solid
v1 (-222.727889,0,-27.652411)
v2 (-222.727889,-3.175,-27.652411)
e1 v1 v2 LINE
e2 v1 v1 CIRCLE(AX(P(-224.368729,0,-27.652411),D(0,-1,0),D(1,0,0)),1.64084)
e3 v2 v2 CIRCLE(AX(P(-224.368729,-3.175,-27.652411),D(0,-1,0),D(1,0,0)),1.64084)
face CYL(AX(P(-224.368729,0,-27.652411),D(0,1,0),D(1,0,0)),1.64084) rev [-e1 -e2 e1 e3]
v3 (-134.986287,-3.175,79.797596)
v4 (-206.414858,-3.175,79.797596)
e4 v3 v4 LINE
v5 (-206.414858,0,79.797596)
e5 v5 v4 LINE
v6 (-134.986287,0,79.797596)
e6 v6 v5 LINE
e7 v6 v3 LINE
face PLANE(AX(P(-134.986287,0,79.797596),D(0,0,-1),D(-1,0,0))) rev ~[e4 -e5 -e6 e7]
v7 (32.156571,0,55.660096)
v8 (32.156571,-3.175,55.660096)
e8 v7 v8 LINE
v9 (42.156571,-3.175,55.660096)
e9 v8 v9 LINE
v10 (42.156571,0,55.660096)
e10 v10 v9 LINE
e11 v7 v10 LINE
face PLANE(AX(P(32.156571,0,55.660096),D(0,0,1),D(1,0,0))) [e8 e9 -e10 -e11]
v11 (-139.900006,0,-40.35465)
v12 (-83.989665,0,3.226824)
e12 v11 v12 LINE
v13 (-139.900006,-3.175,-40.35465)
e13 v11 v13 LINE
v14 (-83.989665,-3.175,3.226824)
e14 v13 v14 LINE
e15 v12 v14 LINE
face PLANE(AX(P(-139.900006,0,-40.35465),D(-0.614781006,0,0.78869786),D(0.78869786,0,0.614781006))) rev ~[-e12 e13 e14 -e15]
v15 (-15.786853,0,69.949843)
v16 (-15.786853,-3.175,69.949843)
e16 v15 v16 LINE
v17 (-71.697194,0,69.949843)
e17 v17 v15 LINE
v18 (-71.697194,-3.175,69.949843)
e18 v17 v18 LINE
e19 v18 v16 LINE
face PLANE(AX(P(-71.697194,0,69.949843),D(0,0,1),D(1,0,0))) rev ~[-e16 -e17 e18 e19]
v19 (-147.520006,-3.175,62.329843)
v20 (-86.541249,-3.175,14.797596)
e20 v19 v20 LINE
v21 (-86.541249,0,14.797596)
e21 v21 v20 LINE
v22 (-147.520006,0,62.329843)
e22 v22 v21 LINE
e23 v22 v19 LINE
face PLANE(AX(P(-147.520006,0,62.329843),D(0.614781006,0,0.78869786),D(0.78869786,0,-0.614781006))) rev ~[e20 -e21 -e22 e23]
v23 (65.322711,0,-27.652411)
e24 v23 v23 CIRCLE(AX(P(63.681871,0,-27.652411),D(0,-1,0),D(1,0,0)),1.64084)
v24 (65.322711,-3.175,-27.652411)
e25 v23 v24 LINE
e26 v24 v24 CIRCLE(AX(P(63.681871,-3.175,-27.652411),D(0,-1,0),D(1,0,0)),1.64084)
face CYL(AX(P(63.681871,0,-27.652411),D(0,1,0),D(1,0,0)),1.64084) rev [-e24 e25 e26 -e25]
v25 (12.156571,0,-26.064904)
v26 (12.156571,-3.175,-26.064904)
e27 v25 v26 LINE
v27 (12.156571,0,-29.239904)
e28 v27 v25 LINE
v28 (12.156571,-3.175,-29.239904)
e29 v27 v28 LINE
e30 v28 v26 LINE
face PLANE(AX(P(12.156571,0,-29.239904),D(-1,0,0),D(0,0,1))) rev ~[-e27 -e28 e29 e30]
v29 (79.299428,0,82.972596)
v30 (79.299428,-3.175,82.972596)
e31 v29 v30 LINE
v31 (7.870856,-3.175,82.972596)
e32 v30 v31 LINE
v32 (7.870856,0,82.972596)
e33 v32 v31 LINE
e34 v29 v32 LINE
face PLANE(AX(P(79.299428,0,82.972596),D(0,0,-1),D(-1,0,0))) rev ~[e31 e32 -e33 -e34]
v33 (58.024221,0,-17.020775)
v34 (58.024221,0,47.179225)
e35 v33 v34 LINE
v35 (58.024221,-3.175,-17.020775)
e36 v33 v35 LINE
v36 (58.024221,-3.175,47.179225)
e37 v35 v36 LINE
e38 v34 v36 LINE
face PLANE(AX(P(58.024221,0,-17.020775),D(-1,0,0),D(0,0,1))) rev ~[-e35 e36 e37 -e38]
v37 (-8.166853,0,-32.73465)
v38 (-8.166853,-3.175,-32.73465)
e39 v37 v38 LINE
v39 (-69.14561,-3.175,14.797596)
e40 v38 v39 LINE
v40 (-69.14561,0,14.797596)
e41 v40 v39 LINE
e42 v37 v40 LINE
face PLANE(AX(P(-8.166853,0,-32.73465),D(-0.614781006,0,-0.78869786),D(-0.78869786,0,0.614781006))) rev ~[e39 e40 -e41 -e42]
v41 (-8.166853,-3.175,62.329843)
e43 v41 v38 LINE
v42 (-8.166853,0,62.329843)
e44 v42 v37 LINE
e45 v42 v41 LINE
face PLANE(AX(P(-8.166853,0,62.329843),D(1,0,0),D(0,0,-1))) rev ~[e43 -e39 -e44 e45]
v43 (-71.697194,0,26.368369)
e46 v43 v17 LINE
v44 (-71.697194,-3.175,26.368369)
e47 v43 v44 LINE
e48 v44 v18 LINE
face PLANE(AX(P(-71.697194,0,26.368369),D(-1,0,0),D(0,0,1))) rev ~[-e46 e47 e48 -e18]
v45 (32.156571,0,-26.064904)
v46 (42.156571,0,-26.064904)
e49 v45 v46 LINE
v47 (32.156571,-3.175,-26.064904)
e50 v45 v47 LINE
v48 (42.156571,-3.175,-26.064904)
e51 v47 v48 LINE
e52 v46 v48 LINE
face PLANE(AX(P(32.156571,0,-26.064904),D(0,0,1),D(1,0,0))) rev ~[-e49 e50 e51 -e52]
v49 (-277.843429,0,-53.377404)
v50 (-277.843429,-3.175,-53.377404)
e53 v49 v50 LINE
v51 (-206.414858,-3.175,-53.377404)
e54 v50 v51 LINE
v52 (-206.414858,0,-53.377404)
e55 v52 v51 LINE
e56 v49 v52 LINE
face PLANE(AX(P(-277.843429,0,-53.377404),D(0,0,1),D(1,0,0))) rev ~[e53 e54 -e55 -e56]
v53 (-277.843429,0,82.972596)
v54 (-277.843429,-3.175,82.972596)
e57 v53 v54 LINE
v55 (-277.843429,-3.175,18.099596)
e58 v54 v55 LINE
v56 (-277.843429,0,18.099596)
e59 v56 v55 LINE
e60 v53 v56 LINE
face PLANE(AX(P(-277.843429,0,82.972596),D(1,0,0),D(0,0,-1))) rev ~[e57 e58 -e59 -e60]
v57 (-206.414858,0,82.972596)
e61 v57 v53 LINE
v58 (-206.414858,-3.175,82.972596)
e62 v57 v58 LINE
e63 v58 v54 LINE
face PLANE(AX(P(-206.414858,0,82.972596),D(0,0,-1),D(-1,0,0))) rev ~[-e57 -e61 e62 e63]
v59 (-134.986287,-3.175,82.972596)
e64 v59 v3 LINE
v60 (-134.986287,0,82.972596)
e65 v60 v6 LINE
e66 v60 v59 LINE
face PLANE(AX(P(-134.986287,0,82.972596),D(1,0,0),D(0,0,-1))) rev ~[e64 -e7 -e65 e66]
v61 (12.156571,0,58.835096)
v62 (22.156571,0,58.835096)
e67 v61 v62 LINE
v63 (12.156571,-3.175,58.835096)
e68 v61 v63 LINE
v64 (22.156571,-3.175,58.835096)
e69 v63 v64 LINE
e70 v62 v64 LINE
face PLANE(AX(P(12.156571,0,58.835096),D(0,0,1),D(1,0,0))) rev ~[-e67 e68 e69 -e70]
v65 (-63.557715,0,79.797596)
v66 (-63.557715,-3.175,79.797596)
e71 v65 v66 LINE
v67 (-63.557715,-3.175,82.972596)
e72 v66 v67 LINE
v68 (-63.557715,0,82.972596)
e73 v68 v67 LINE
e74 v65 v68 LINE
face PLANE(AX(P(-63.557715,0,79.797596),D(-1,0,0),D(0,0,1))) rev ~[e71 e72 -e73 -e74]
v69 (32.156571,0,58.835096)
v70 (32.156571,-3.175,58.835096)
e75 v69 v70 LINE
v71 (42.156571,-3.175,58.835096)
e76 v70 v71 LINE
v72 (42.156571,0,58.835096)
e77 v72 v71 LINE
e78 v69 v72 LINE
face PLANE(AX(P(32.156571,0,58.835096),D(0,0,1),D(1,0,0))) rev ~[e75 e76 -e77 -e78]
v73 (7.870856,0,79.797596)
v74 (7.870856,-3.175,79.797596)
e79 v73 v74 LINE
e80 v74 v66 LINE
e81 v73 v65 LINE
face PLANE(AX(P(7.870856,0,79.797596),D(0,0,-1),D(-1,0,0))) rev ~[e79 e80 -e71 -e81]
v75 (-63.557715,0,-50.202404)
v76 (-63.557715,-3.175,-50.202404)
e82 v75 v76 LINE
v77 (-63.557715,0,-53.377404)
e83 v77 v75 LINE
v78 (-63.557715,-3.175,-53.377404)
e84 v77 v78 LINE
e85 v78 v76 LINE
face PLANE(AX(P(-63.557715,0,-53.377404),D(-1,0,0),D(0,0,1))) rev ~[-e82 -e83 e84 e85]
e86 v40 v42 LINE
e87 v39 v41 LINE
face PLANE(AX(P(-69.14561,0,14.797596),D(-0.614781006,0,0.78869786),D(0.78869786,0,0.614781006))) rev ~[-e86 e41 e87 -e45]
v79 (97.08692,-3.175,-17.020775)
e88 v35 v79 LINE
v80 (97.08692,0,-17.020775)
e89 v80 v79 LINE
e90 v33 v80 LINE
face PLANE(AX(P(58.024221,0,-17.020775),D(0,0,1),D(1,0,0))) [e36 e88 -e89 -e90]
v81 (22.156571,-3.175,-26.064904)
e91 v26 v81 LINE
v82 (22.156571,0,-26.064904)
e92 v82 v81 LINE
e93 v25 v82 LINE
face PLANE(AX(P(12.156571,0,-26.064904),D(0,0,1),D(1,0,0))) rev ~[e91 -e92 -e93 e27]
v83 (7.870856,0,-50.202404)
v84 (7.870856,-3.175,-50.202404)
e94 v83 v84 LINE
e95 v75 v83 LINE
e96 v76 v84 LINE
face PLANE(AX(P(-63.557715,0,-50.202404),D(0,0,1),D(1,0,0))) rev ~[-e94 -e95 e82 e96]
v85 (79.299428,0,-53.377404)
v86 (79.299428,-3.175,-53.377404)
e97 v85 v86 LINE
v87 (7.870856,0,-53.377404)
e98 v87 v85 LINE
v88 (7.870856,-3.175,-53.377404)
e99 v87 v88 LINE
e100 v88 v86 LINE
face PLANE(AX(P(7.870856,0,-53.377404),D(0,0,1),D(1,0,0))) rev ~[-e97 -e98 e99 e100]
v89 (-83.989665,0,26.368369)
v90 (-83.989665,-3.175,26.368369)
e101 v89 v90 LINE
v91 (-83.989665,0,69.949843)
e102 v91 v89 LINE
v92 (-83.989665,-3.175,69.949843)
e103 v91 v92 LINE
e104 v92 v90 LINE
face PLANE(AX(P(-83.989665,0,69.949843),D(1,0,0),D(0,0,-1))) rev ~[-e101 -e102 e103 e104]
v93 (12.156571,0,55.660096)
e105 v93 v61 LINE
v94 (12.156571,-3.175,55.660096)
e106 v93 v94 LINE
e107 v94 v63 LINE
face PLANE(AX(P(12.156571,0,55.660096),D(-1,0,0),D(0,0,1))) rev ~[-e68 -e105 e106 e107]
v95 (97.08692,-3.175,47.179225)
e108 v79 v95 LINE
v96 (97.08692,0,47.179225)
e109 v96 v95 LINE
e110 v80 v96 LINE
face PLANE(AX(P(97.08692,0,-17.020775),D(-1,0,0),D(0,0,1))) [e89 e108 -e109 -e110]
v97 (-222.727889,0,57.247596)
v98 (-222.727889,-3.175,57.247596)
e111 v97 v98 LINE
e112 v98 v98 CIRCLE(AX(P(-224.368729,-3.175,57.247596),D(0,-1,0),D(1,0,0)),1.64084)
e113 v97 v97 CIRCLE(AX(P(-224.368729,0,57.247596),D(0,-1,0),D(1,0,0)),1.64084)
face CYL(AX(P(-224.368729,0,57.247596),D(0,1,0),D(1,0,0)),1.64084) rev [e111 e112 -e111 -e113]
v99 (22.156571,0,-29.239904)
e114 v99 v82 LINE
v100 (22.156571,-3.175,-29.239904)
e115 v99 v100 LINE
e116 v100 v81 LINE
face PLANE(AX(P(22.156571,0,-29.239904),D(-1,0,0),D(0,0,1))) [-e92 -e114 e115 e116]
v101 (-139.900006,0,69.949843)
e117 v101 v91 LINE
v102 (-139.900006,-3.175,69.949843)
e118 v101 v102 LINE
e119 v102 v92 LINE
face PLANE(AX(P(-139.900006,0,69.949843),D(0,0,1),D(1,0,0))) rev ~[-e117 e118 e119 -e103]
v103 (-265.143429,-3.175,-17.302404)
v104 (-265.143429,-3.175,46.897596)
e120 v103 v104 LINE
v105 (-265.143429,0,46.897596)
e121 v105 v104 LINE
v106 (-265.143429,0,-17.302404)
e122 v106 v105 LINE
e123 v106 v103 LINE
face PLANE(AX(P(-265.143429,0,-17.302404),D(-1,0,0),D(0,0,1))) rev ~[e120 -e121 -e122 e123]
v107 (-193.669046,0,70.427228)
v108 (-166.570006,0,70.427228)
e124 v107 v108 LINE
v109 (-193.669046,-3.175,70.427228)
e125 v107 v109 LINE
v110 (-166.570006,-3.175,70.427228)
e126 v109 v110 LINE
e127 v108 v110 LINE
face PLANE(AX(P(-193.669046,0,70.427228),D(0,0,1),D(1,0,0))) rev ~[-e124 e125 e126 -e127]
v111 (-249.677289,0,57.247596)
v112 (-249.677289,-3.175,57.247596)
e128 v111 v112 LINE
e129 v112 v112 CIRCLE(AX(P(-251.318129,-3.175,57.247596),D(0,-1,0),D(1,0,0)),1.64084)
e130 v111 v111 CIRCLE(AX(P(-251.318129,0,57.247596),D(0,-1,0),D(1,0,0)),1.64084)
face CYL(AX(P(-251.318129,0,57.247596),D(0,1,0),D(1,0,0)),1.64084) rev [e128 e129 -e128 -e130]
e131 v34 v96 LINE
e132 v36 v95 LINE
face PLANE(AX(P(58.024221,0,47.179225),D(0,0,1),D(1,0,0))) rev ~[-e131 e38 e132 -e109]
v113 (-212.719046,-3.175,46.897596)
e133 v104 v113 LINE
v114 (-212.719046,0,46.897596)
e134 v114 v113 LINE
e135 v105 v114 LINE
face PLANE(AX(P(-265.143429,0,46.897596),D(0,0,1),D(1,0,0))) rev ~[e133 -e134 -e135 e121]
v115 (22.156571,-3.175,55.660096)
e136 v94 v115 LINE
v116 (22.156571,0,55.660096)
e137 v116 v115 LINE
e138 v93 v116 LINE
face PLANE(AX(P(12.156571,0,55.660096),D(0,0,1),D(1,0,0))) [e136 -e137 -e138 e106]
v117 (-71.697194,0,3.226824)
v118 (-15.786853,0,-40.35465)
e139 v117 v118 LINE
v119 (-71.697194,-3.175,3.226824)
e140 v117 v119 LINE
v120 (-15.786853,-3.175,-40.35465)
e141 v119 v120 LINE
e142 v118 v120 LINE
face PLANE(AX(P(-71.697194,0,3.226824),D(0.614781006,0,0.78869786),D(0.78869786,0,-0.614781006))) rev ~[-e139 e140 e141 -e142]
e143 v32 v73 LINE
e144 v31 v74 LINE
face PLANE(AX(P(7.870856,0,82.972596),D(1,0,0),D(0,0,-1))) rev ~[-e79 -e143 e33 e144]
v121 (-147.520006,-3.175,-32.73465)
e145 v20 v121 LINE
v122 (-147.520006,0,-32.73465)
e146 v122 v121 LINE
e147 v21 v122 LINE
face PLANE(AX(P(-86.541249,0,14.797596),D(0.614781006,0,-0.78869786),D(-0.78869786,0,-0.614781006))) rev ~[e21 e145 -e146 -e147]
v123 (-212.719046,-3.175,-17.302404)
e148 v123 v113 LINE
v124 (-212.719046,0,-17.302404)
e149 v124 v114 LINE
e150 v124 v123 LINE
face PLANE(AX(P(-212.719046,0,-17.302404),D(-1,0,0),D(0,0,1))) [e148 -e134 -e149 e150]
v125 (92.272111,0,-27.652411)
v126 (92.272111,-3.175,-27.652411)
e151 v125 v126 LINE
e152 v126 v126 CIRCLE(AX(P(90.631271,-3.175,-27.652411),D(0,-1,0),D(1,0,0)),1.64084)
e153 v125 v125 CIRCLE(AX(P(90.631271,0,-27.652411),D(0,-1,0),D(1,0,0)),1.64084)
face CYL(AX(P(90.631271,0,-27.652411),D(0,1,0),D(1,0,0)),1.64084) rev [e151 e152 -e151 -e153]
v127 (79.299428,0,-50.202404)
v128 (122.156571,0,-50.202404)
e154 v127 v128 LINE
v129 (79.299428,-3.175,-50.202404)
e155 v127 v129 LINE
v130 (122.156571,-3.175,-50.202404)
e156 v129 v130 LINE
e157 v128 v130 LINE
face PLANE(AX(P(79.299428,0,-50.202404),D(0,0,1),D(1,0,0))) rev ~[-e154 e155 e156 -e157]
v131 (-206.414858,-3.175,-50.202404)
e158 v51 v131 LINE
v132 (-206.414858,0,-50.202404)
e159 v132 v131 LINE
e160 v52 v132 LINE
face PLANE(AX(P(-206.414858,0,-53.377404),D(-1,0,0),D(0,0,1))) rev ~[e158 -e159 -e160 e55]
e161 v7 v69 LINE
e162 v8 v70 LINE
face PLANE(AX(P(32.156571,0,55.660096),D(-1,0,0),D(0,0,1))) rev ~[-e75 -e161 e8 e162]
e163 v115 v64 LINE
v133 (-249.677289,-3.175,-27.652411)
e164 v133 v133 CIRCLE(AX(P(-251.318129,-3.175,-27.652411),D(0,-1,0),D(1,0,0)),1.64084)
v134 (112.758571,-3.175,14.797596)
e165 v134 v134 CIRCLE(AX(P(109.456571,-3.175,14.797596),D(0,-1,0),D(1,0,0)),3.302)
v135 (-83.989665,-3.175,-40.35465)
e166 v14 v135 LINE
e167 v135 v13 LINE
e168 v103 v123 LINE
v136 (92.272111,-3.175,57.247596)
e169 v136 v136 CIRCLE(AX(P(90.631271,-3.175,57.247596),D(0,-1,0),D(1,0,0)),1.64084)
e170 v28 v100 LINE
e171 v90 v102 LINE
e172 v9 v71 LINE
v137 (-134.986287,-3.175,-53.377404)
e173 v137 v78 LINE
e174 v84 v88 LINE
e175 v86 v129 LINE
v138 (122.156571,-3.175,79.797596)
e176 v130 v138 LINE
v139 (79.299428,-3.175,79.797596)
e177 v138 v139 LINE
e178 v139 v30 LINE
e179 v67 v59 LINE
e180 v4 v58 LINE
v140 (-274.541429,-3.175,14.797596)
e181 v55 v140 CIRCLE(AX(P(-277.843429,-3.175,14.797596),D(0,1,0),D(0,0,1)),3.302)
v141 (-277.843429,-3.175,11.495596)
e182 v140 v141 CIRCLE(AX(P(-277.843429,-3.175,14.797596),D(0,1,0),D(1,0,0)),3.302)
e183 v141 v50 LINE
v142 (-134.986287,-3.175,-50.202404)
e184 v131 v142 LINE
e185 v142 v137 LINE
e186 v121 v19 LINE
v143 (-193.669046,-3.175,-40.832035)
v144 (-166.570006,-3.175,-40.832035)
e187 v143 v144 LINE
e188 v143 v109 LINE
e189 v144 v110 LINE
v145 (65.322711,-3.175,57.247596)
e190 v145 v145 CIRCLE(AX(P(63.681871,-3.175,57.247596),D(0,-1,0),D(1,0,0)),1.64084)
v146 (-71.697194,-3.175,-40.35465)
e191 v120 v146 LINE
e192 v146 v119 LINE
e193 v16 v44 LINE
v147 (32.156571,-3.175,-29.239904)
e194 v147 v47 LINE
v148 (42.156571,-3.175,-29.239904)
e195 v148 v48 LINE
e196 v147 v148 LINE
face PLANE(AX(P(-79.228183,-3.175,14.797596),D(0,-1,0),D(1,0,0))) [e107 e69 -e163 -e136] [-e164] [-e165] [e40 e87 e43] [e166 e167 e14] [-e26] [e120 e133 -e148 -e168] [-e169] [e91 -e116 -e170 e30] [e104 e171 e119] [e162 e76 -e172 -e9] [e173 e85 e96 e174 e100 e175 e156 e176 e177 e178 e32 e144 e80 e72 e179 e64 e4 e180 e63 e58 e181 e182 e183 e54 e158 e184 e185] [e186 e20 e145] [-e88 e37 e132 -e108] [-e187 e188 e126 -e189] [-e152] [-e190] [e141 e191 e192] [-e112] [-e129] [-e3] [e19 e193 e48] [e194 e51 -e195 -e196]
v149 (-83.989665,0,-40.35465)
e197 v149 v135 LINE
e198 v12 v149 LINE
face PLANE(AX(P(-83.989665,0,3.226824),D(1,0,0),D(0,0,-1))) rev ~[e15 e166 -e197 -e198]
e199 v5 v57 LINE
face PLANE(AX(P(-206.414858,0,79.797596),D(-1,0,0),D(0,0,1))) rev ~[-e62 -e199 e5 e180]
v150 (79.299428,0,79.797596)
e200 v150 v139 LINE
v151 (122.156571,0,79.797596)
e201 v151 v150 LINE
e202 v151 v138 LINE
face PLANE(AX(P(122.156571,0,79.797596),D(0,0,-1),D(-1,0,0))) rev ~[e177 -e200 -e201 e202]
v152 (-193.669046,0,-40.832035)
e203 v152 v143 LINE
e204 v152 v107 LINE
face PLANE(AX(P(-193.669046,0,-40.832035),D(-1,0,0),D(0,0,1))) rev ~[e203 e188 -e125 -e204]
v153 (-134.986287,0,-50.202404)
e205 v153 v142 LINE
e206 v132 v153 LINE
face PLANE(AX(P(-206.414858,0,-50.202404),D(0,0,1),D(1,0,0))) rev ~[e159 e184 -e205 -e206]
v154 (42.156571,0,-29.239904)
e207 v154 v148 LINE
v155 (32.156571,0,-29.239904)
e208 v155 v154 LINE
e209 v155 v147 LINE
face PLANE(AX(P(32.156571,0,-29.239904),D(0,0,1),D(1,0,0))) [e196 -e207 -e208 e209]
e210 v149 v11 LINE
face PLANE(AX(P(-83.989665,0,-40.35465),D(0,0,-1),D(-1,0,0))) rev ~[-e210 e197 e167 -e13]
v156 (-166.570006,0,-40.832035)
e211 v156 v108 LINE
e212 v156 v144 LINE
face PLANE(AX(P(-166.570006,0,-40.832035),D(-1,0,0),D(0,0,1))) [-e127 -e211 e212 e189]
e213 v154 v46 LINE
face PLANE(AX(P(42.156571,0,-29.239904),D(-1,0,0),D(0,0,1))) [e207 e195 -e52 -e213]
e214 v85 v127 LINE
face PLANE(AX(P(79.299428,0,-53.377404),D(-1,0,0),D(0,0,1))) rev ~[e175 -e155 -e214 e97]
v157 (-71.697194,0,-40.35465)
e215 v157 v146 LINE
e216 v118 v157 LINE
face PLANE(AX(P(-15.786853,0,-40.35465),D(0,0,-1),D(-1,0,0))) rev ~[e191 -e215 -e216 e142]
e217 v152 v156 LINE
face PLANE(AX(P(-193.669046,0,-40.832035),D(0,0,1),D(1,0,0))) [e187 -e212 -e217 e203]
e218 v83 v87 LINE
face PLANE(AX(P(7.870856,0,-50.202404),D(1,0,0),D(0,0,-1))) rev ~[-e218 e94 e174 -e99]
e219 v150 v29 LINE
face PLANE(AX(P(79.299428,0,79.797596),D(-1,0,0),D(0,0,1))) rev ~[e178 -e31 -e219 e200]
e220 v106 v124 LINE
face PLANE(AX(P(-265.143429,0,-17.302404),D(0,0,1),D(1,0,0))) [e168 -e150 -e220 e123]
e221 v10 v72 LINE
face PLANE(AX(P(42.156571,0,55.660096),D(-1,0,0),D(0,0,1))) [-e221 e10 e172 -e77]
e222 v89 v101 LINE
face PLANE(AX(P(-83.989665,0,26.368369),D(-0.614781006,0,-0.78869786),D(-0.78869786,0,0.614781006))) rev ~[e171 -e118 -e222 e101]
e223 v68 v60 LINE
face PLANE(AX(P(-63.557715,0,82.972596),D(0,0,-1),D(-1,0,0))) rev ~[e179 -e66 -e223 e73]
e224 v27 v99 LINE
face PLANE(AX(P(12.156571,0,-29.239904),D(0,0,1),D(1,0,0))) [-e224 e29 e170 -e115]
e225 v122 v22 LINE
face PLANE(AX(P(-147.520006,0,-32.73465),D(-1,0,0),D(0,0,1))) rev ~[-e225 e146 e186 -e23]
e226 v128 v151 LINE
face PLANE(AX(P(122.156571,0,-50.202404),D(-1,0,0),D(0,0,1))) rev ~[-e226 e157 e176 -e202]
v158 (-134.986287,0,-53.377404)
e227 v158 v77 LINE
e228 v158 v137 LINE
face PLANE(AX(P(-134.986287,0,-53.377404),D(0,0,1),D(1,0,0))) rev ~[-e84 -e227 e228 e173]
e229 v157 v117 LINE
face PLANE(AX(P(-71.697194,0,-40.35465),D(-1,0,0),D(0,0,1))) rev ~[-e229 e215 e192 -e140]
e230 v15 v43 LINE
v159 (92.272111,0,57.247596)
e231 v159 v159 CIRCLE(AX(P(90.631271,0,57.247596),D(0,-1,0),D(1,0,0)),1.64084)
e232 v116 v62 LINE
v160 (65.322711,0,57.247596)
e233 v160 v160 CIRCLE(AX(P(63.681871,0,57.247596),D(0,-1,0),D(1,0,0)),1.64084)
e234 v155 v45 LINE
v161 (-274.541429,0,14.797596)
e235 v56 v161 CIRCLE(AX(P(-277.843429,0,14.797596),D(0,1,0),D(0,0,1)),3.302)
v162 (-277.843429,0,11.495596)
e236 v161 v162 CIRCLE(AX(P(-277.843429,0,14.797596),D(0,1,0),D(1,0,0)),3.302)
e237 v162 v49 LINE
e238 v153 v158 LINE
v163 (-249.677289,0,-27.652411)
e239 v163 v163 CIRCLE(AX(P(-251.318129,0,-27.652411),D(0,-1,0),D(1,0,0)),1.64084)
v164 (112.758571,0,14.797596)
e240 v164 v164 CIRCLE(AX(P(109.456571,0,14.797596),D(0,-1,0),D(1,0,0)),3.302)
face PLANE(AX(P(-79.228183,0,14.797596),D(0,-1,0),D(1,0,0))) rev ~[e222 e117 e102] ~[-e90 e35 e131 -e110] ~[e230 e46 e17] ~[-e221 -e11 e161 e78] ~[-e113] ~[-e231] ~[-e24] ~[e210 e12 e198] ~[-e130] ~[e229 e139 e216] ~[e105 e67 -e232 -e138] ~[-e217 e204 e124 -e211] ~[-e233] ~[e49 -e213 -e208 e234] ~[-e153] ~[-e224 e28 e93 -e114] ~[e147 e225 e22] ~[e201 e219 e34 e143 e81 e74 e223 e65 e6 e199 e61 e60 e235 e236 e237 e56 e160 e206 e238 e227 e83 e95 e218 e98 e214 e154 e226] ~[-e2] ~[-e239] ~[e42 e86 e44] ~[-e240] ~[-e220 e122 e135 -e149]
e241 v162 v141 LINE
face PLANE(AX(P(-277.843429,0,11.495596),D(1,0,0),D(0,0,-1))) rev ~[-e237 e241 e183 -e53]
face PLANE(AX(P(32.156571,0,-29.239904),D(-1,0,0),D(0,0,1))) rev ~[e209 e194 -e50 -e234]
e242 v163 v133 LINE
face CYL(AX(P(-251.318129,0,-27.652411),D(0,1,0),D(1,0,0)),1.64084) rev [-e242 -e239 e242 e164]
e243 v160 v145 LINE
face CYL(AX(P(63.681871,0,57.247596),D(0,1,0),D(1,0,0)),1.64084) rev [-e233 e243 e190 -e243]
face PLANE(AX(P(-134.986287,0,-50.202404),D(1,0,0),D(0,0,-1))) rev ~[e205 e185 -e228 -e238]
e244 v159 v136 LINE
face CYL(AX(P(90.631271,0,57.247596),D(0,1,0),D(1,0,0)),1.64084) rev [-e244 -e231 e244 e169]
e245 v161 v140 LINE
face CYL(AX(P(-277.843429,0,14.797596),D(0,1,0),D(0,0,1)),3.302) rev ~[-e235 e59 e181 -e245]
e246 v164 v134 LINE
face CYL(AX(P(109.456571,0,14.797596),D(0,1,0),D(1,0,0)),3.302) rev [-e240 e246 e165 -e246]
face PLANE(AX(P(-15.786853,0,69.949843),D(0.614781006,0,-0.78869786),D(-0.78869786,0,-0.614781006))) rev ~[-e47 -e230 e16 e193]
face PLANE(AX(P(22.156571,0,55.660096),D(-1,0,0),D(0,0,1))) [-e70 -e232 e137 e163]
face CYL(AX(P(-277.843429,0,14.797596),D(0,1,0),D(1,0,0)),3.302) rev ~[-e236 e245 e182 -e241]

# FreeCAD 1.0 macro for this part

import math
import FreeCAD as App
import Part
import Sketcher
from FreeCAD import Vector

doc = App.newDocument("Part")
body = doc.addObject("PartDesign::Body", "Body")

# Sketch on XZ plane
sketch1 = body.newObject("Sketcher::SketchObject", "Sketch")
sketch1.AttachmentSupport = (doc.getObject("XZ_Plane"), [""])
sketch1.MapMode = "FlatFace"
sketch1.addGeometry(Part.LineSegment(Vector(79.299428, -50.202404, 0), Vector(122.156571, -50.202404, 0)), False)
sketch1.addGeometry(Part.LineSegment(Vector(122.156571, -50.202404, 0), Vector(122.156571, 79.797596, 0)), False)
sketch1.addGeometry(Part.LineSegment(Vector(122.156571, 79.797596, 0), Vector(79.299428, 79.797596, 0)), False)
sketch1.addGeometry(Part.LineSegment(Vector(79.299428, 79.797596, 0), Vector(79.299428, 82.972596, 0)), False)
sketch1.addGeometry(Part.LineSegment(Vector(79.299428, 82.972596, 0), Vector(7.870856, 82.972596, 0)), False)
sketch1.addGeometry(Part.LineSegment(Vector(7.870856, 82.972596, 0), Vector(7.870856, 79.797596, 0)), False)
sketch1.addGeometry(Part.LineSegment(Vector(7.870856, 79.797596, 0), Vector(-63.557715, 79.797596, 0)), False)
sketch1.addGeometry(Part.LineSegment(Vector(-63.557715, 79.797596, 0), Vector(-63.557715, 82.972596, 0)), False)
sketch1.addGeometry(Part.LineSegment(Vector(-63.557715, 82.972596, 0), Vector(-134.986287, 82.972596, 0)), False)
sketch1.addGeometry(Part.LineSegment(Vector(-134.986287, 82.972596, 0), Vector(-134.986287, 79.797596, 0)), False)
sketch1.addGeometry(Part.LineSegment(Vector(-134.986287, 79.797596, 0), Vector(-206.414858, 79.797596, 0)), False)
sketch1.addGeometry(Part.LineSegment(Vector(-206.414858, 79.797596, 0), Vector(-206.414858, 82.972596, 0)), False)
sketch1.addGeometry(Part.LineSegment(Vector(-206.414858, 82.972596, 0), Vector(-277.843429, 82.972596, 0)), False)
sketch1.addGeometry(Part.LineSegment(Vector(-277.843429, 82.972596, 0), Vector(-277.843429, 18.099596, 0)), False)
sketch1.addGeometry(Part.ArcOfCircle(Part.Circle(Vector(-277.843429, 14.797596, 0), Vector(0, 0, 1), 3.302), math.radians(0), math.radians(90)), False)
sketch1.addGeometry(Part.ArcOfCircle(Part.Circle(Vector(-277.843429, 14.797596, 0), Vector(0, 0, 1), 3.302), math.radians(-90), math.radians(0)), False)
sketch1.addGeometry(Part.LineSegment(Vector(-277.843429, 11.495596, 0), Vector(-277.843429, -53.377404, 0)), False)
sketch1.addGeometry(Part.LineSegment(Vector(-277.843429, -53.377404, 0), Vector(-206.414858, -53.377404, 0)), False)
sketch1.addGeometry(Part.LineSegment(Vector(-206.414858, -53.377404, 0), Vector(-206.414858, -50.202404, 0)), False)
sketch1.addGeometry(Part.LineSegment(Vector(-206.414858, -50.202404, 0), Vector(-134.986287, -50.202404, 0)), False)
sketch1.addGeometry(Part.LineSegment(Vector(-134.986287, -50.202404, 0), Vector(-134.986287, -53.377404, 0)), False)
sketch1.addGeometry(Part.LineSegment(Vector(-134.986287, -53.377404, 0), Vector(-63.557715, -53.377404, 0)), False)
sketch1.addGeometry(Part.LineSegment(Vector(-63.557715, -53.377404, 0), Vector(-63.557715, -50.202404, 0)), False)
sketch1.addGeometry(Part.LineSegment(Vector(-63.557715, -50.202404, 0), Vector(7.870856, -50.202404, 0)), False)
sketch1.addGeometry(Part.LineSegment(Vector(7.870856, -50.202404, 0), Vector(7.870856, -53.377404, 0)), False)
sketch1.addGeometry(Part.LineSegment(Vector(7.870856, -53.377404, 0), Vector(79.299428, -53.377404, 0)), False)
sketch1.addGeometry(Part.LineSegment(Vector(79.299428, -53.377404, 0), Vector(79.299428, -50.202404, 0)), False)
sketch1.addGeometry(Part.Circle(Vector(-251.318129, -27.652411, 0), Vector(0, 0, 1), 1.64084), False)
sketch1.addGeometry(Part.Circle(Vector(-224.368729, -27.652411, 0), Vector(0, 0, 1), 1.64084), False)
sketch1.addGeometry(Part.LineSegment(Vector(-139.900006, -40.35465, 0), Vector(-83.989665, 3.226824, 0)), False)
sketch1.addGeometry(Part.LineSegment(Vector(-83.989665, 3.226824, 0), Vector(-83.989665, -40.35465, 0)), False)
sketch1.addGeometry(Part.LineSegment(Vector(-83.989665, -40.35465, 0), Vector(-139.900006, -40.35465, 0)), False)
sketch1.addGeometry(Part.LineSegment(Vector(22.156571, -29.239904, 0), Vector(12.156571, -29.239904, 0)), False)
sketch1.addGeometry(Part.LineSegment(Vector(12.156571, -29.239904, 0), Vector(12.156571, -26.064904, 0)), False)
sketch1.addGeometry(Part.LineSegment(Vector(12.156571, -26.064904, 0), Vector(22.156571, -26.064904, 0)), False)
sketch1.addGeometry(Part.LineSegment(Vector(22.156571, -26.064904, 0), Vector(22.156571, -29.239904, 0)), False)
sketch1.addGeometry(Part.LineSegment(Vector(-71.697194, -40.35465, 0), Vector(-71.697194, 3.226824, 0)), False)
sketch1.addGeometry(Part.LineSegment(Vector(-71.697194, 3.226824, 0), Vector(-15.786853, -40.35465, 0)), False)
sketch1.addGeometry(Part.LineSegment(Vector(-15.786853, -40.35465, 0), Vector(-71.697194, -40.35465, 0)), False)
sketch1.addGeometry(Part.LineSegment(Vector(42.156571, -29.239904, 0), Vector(32.156571, -29.239904, 0)), False)
sketch1.addGeometry(Part.LineSegment(Vector(32.156571, -29.239904, 0), Vector(32.156571, -26.064904, 0)), False)
sketch1.addGeometry(Part.LineSegment(Vector(32.156571, -26.064904, 0), Vector(42.156571, -26.064904, 0)), False)
sketch1.addGeometry(Part.LineSegment(Vector(42.156571, -26.064904, 0), Vector(42.156571, -29.239904, 0)), False)
sketch1.addGeometry(Part.Circle(Vector(63.681871, -27.652411, 0), Vector(0, 0, 1), 1.64084), False)
sketch1.addGeometry(Part.Circle(Vector(90.631271, -27.652411, 0), Vector(0, 0, 1), 1.64084), False)
sketch1.addGeometry(Part.LineSegment(Vector(-212.719046, -17.302404, 0), Vector(-265.143429, -17.302404, 0)), False)
sketch1.addGeometry(Part.LineSegment(Vector(-265.143429, -17.302404, 0), Vector(-265.143429, 46.897596, 0)), False)
sketch1.addGeometry(Part.LineSegment(Vector(-265.143429, 46.897596, 0), Vector(-212.719046, 46.897596, 0)), False)
sketch1.addGeometry(Part.LineSegment(Vector(-212.719046, 46.897596, 0), Vector(-212.719046, -17.302404, 0)), False)
sketch1.addGeometry(Part.LineSegment(Vector(-166.570006, -40.832035, 0), Vector(-193.669046, -40.832035, 0)), False)
sketch1.addGeometry(Part.LineSegment(Vector(-193.669046, -40.832035, 0), Vector(-193.669046, 70.427228, 0)), False)
sketch1.addGeometry(Part.LineSegment(Vector(-193.669046, 70.427228, 0), Vector(-166.570006, 70.427228, 0)), False)
sketch1.addGeometry(Part.LineSegment(Vector(-166.570006, 70.427228, 0), Vector(-166.570006, -40.832035, 0)), False)
sketch1.addGeometry(Part.LineSegment(Vector(-147.520006, 62.329843, 0), Vector(-86.541249, 14.797596, 0)), False)
sketch1.addGeometry(Part.LineSegment(Vector(-86.541249, 14.797596, 0), Vector(-147.520006, -32.73465, 0)), False)
sketch1.addGeometry(Part.LineSegment(Vector(-147.520006, -32.73465, 0), Vector(-147.520006, 62.329843, 0)), False)
sketch1.addGeometry(Part.Circle(Vector(-251.318129, 57.247596, 0), Vector(0, 0, 1), 1.64084), False)
sketch1.addGeometry(Part.Circle(Vector(-224.368729, 57.247596, 0), Vector(0, 0, 1), 1.64084), False)
sketch1.addGeometry(Part.LineSegment(Vector(-139.900006, 69.949843, 0), Vector(-83.989665, 69.949843, 0)), False)
sketch1.addGeometry(Part.LineSegment(Vector(-83.989665, 69.949843, 0), Vector(-83.989665, 26.368369, 0)), False)
sketch1.addGeometry(Part.LineSegment(Vector(-83.989665, 26.368369, 0), Vector(-139.900006, 69.949843, 0)), False)
sketch1.addGeometry(Part.LineSegment(Vector(-8.166853, -32.73465, 0), Vector(-69.14561, 14.797596, 0)), False)
sketch1.addGeometry(Part.LineSegment(Vector(-69.14561, 14.797596, 0), Vector(-8.166853, 62.329843, 0)), False)
sketch1.addGeometry(Part.LineSegment(Vector(-8.166853, 62.329843, 0), Vector(-8.166853, -32.73465, 0)), False)
sketch1.addGeometry(Part.LineSegment(Vector(97.08692, -17.020775, 0), Vector(58.024221, -17.020775, 0)), False)
sketch1.addGeometry(Part.LineSegment(Vector(58.024221, -17.020775, 0), Vector(58.024221, 47.179225, 0)), False)
sketch1.addGeometry(Part.LineSegment(Vector(58.024221, 47.179225, 0), Vector(97.08692, 47.179225, 0)), False)
sketch1.addGeometry(Part.LineSegment(Vector(97.08692, 47.179225, 0), Vector(97.08692, -17.020775, 0)), False)
sketch1.addGeometry(Part.Circle(Vector(109.456571, 14.797596, 0), Vector(0, 0, 1), 3.302), False)
sketch1.addGeometry(Part.LineSegment(Vector(-15.786853, 69.949843, 0), Vector(-71.697194, 26.368369, 0)), False)
sketch1.addGeometry(Part.LineSegment(Vector(-71.697194, 26.368369, 0), Vector(-71.697194, 69.949843, 0)), False)
sketch1.addGeometry(Part.LineSegment(Vector(-71.697194, 69.949843, 0), Vector(-15.786853, 69.949843, 0)), False)
sketch1.addGeometry(Part.LineSegment(Vector(22.156571, 55.660096, 0), Vector(12.156571, 55.660096, 0)), False)
sketch1.addGeometry(Part.LineSegment(Vector(12.156571, 55.660096, 0), Vector(12.156571, 58.835096, 0)), False)
sketch1.addGeometry(Part.LineSegment(Vector(12.156571, 58.835096, 0), Vector(22.156571, 58.835096, 0)), False)
sketch1.addGeometry(Part.LineSegment(Vector(22.156571, 58.835096, 0), Vector(22.156571, 55.660096, 0)), False)
sketch1.addGeometry(Part.LineSegment(Vector(42.156571, 55.660096, 0), Vector(32.156571, 55.660096, 0)), False)
sketch1.addGeometry(Part.LineSegment(Vector(32.156571, 55.660096, 0), Vector(32.156571, 58.835096, 0)), False)
sketch1.addGeometry(Part.LineSegment(Vector(32.156571, 58.835096, 0), Vector(42.156571, 58.835096, 0)), False)
sketch1.addGeometry(Part.LineSegment(Vector(42.156571, 58.835096, 0), Vector(42.156571, 55.660096, 0)), False)
sketch1.addGeometry(Part.Circle(Vector(63.681871, 57.247596, 0), Vector(0, 0, 1), 1.64084), False)
sketch1.addGeometry(Part.Circle(Vector(90.631271, 57.247596, 0), Vector(0, 0, 1), 1.64084), False)
sketch1.addConstraint(Sketcher.Constraint("Coincident", 0, 2, 1, 1))
sketch1.addConstraint(Sketcher.Constraint("Coincident", 1, 2, 2, 1))
sketch1.addConstraint(Sketcher.Constraint("Coincident", 2, 2, 3, 1))
sketch1.addConstraint(Sketcher.Constraint("Coincident", 3, 2, 4, 1))
sketch1.addConstraint(Sketcher.Constraint("Coincident", 4, 2, 5, 1))
sketch1.addConstraint(Sketcher.Constraint("Coincident", 5, 2, 6, 1))
sketch1.addConstraint(Sketcher.Constraint("Coincident", 6, 2, 7, 1))
sketch1.addConstraint(Sketcher.Constraint("Coincident", 7, 2, 8, 1))
sketch1.addConstraint(Sketcher.Constraint("Coincident", 8, 2, 9, 1))
sketch1.addConstraint(Sketcher.Constraint("Coincident", 9, 2, 10, 1))
sketch1.addConstraint(Sketcher.Constraint("Coincident", 10, 2, 11, 1))
sketch1.addConstraint(Sketcher.Constraint("Coincident", 11, 2, 12, 1))
sketch1.addConstraint(Sketcher.Constraint("Coincident", 12, 2, 13, 1))
sketch1.addConstraint(Sketcher.Constraint("Coincident", 13, 2, 14, 2))
sketch1.addConstraint(Sketcher.Constraint("Tangent", 14, 1, 15, 2))
sketch1.addConstraint(Sketcher.Constraint("Coincident", 15, 1, 16, 1))
sketch1.addConstraint(Sketcher.Constraint("Coincident", 16, 2, 17, 1))
sketch1.addConstraint(Sketcher.Constraint("Coincident", 17, 2, 18, 1))
sketch1.addConstraint(Sketcher.Constraint("Coincident", 18, 2, 19, 1))
sketch1.addConstraint(Sketcher.Constraint("Coincident", 19, 2, 20, 1))
sketch1.addConstraint(Sketcher.Constraint("Coincident", 20, 2, 21, 1))
sketch1.addConstraint(Sketcher.Constraint("Coincident", 21, 2, 22, 1))
sketch1.addConstraint(Sketcher.Constraint("Coincident", 22, 2, 23, 1))
sketch1.addConstraint(Sketcher.Constraint("Coincident", 23, 2, 24, 1))
sketch1.addConstraint(Sketcher.Constraint("Coincident", 24, 2, 25, 1))
sketch1.addConstraint(Sketcher.Constraint("Coincident", 25, 2, 26, 1))
sketch1.addConstraint(Sketcher.Constraint("Coincident", 26, 2, 0, 1))
sketch1.addConstraint(Sketcher.Constraint("Coincident", 29, 2, 30, 1))
sketch1.addConstraint(Sketcher.Constraint("Coincident", 30, 2, 31, 1))
sketch1.addConstraint(Sketcher.Constraint("Coincident", 31, 2, 29, 1))
sketch1.addConstraint(Sketcher.Constraint("Coincident", 32, 2, 33, 1))
sketch1.addConstraint(Sketcher.Constraint("Coincident", 33, 2, 34, 1))
sketch1.addConstraint(Sketcher.Constraint("Coincident", 34, 2, 35, 1))
sketch1.addConstraint(Sketcher.Constraint("Coincident", 35, 2, 32, 1))
sketch1.addConstraint(Sketcher.Constraint("Coincident", 36, 2, 37, 1))
sketch1.addConstraint(Sketcher.Constraint("Coincident", 37, 2, 38, 1))
sketch1.addConstraint(Sketcher.Constraint("Coincident", 38, 2, 36, 1))
sketch1.addConstraint(Sketcher.Constraint("Coincident", 39, 2, 40, 1))
sketch1.addConstraint(Sketcher.Constraint("Coincident", 40, 2, 41, 1))
sketch1.addConstraint(Sketcher.Constraint("Coincident", 41, 2, 42, 1))
sketch1.addConstraint(Sketcher.Constraint("Coincident", 42, 2, 39, 1))
sketch1.addConstraint(Sketcher.Constraint("Coincident", 45, 2, 46, 1))
sketch1.addConstraint(Sketcher.Constraint("Coincident", 46, 2, 47, 1))
sketch1.addConstraint(Sketcher.Constraint("Coincident", 47, 2, 48, 1))
sketch1.addConstraint(Sketcher.Constraint("Coincident", 48, 2, 45, 1))
sketch1.addConstraint(Sketcher.Constraint("Coincident", 49, 2, 50, 1))
sketch1.addConstraint(Sketcher.Constraint("Coincident", 50, 2, 51, 1))
sketch1.addConstraint(Sketcher.Constraint("Coincident", 51, 2, 52, 1))
sketch1.addConstraint(Sketcher.Constraint("Coincident", 52, 2, 49, 1))
sketch1.addConstraint(Sketcher.Constraint("Coincident", 53, 2, 54, 1))
sketch1.addConstraint(Sketcher.Constraint("Coincident", 54, 2, 55, 1))
sketch1.addConstraint(Sketcher.Constraint("Coincident", 55, 2, 53, 1))
sketch1.addConstraint(Sketcher.Constraint("Coincident", 58, 2, 59, 1))
sketch1.addConstraint(Sketcher.Constraint("Coincident", 59, 2, 60, 1))
sketch1.addConstraint(Sketcher.Constraint("Coincident", 60, 2, 58, 1))
sketch1.addConstraint(Sketcher.Constraint("Coincident", 61, 2, 62, 1))
sketch1.addConstraint(Sketcher.Constraint("Coincident", 62, 2, 63, 1))
sketch1.addConstraint(Sketcher.Constraint("Coincident", 63, 2, 61, 1))
sketch1.addConstraint(Sketcher.Constraint("Coincident", 64, 2, 65, 1))
sketch1.addConstraint(Sketcher.Constraint("Coincident", 65, 2, 66, 1))
sketch1.addConstraint(Sketcher.Constraint("Coincident", 66, 2, 67, 1))
sketch1.addConstraint(Sketcher.Constraint("Coincident", 67, 2, 64, 1))
sketch1.addConstraint(Sketcher.Constraint("Coincident", 69, 2, 70, 1))
sketch1.addConstraint(Sketcher.Constraint("Coincident", 70, 2, 71, 1))
sketch1.addConstraint(Sketcher.Constraint("Coincident", 71, 2, 69, 1))
sketch1.addConstraint(Sketcher.Constraint("Coincident", 72, 2, 73, 1))
sketch1.addConstraint(Sketcher.Constraint("Coincident", 73, 2, 74, 1))
sketch1.addConstraint(Sketcher.Constraint("Coincident", 74, 2, 75, 1))
sketch1.addConstraint(Sketcher.Constraint("Coincident", 75, 2, 72, 1))
sketch1.addConstraint(Sketcher.Constraint("Coincident", 76, 2, 77, 1))
sketch1.addConstraint(Sketcher.Constraint("Coincident", 77, 2, 78, 1))
sketch1.addConstraint(Sketcher.Constraint("Coincident", 78, 2, 79, 1))
sketch1.addConstraint(Sketcher.Constraint("Coincident", 79, 2, 76, 1))
sketch1.addConstraint(Sketcher.Constraint("Horizontal", 0))
sketch1.addConstraint(Sketcher.Constraint("Vertical", 1))
sketch1.addConstraint(Sketcher.Constraint("Horizontal", 2))
sketch1.addConstraint(Sketcher.Constraint("Vertical", 3))
sketch1.addConstraint(Sketcher.Constraint("Horizontal", 4))
sketch1.addConstraint(Sketcher.Constraint("Vertical", 5))
sketch1.addConstraint(Sketcher.Constraint("Horizontal", 6))
sketch1.addConstraint(Sketcher.Constraint("Vertical", 7))
sketch1.addConstraint(Sketcher.Constraint("Horizontal", 8))
sketch1.addConstraint(Sketcher.Constraint("Vertical", 9))
sketch1.addConstraint(Sketcher.Constraint("Horizontal", 10))
sketch1.addConstraint(Sketcher.Constraint("Vertical", 11))
sketch1.addConstraint(Sketcher.Constraint("Horizontal", 12))
sketch1.addConstraint(Sketcher.Constraint("Vertical", 13))
sketch1.addConstraint(Sketcher.Constraint("Vertical", 16))
sketch1.addConstraint(Sketcher.Constraint("Horizontal", 17))
sketch1.addConstraint(Sketcher.Constraint("Vertical", 18))
sketch1.addConstraint(Sketcher.Constraint("Horizontal", 19))
sketch1.addConstraint(Sketcher.Constraint("Vertical", 20))
sketch1.addConstraint(Sketcher.Constraint("Horizontal", 21))
sketch1.addConstraint(Sketcher.Constraint("Vertical", 22))
sketch1.addConstraint(Sketcher.Constraint("Horizontal", 23))
sketch1.addConstraint(Sketcher.Constraint("Vertical", 24))
sketch1.addConstraint(Sketcher.Constraint("Horizontal", 25))
sketch1.addConstraint(Sketcher.Constraint("Vertical", 26))
sketch1.addConstraint(Sketcher.Constraint("Vertical", 30))
sketch1.addConstraint(Sketcher.Constraint("Horizontal", 31))
sketch1.addConstraint(Sketcher.Constraint("Horizontal", 32))
sketch1.addConstraint(Sketcher.Constraint("Vertical", 33))
sketch1.addConstraint(Sketcher.Constraint("Horizontal", 34))
sketch1.addConstraint(Sketcher.Constraint("Vertical", 35))
sketch1.addConstraint(Sketcher.Constraint("Vertical", 36))
sketch1.addConstraint(Sketcher.Constraint("Horizontal", 38))
sketch1.addConstraint(Sketcher.Constraint("Horizontal", 39))
sketch1.addConstraint(Sketcher.Constraint("Vertical", 40))
sketch1.addConstraint(Sketcher.Constraint("Horizontal", 41))
sketch1.addConstraint(Sketcher.Constraint("Vertical", 42))
sketch1.addConstraint(Sketcher.Constraint("Horizontal", 45))
sketch1.addConstraint(Sketcher.Constraint("Vertical", 46))
sketch1.addConstraint(Sketcher.Constraint("Horizontal", 47))
sketch1.addConstraint(Sketcher.Constraint("Vertical", 48))
sketch1.addConstraint(Sketcher.Constraint("Horizontal", 49))
sketch1.addConstraint(Sketcher.Constraint("Vertical", 50))
sketch1.addConstraint(Sketcher.Constraint("Horizontal", 51))
sketch1.addConstraint(Sketcher.Constraint("Vertical", 52))
sketch1.addConstraint(Sketcher.Constraint("Vertical", 55))
sketch1.addConstraint(Sketcher.Constraint("Horizontal", 58))
sketch1.addConstraint(Sketcher.Constraint("Vertical", 59))
sketch1.addConstraint(Sketcher.Constraint("Vertical", 63))
sketch1.addConstraint(Sketcher.Constraint("Horizontal", 64))
sketch1.addConstraint(Sketcher.Constraint("Vertical", 65))
sketch1.addConstraint(Sketcher.Constraint("Horizontal", 66))
sketch1.addConstraint(Sketcher.Constraint("Vertical", 67))
sketch1.addConstraint(Sketcher.Constraint("Vertical", 70))
sketch1.addConstraint(Sketcher.Constraint("Horizontal", 71))
sketch1.addConstraint(Sketcher.Constraint("Horizontal", 72))
sketch1.addConstraint(Sketcher.Constraint("Vertical", 73))
sketch1.addConstraint(Sketcher.Constraint("Horizontal", 74))
sketch1.addConstraint(Sketcher.Constraint("Vertical", 75))
sketch1.addConstraint(Sketcher.Constraint("Horizontal", 76))
sketch1.addConstraint(Sketcher.Constraint("Vertical", 77))
sketch1.addConstraint(Sketcher.Constraint("Horizontal", 78))
sketch1.addConstraint(Sketcher.Constraint("Vertical", 79))
sketch1.addConstraint(Sketcher.Constraint("Equal", 14, 15))
sketch1.addConstraint(Sketcher.Constraint("Equal", 27, 28))
sketch1.addConstraint(Sketcher.Constraint("Equal", 28, 43))
sketch1.addConstraint(Sketcher.Constraint("Equal", 43, 44))
sketch1.addConstraint(Sketcher.Constraint("Equal", 44, 56))
sketch1.addConstraint(Sketcher.Constraint("Equal", 56, 57))
sketch1.addConstraint(Sketcher.Constraint("Equal", 15, 68))
sketch1.addConstraint(Sketcher.Constraint("Equal", 57, 80))
sketch1.addConstraint(Sketcher.Constraint("Equal", 80, 81))
sketch1.addConstraint(Sketcher.Constraint("Parallel", 37, 53))
sketch1.addConstraint(Sketcher.Constraint("Parallel", 29, 54))
sketch1.addConstraint(Sketcher.Constraint("Parallel", 53, 60))
sketch1.addConstraint(Sketcher.Constraint("Parallel", 60, 61))
sketch1.addConstraint(Sketcher.Constraint("Parallel", 54, 62))
sketch1.addConstraint(Sketcher.Constraint("Parallel", 62, 69))
sketch1.addConstraint(Sketcher.Constraint("Horizontal", 27, 3, 28, 3))
sketch1.addConstraint(Sketcher.Constraint("Horizontal", 28, 3, 43, 3))
sketch1.addConstraint(Sketcher.Constraint("Horizontal", 43, 3, 44, 3))
sketch1.addConstraint(Sketcher.Constraint("Horizontal", 56, 3, 57, 3))
sketch1.addConstraint(Sketcher.Constraint("Horizontal", 15, 3, 68, 3))
sketch1.addConstraint(Sketcher.Constraint("Horizontal", 57, 3, 80, 3))
sketch1.addConstraint(Sketcher.Constraint("Horizontal", 80, 3, 81, 3))
sketch1.addConstraint(Sketcher.Constraint("Horizontal", 2, 2, 5, 2))
sketch1.addConstraint(Sketcher.Constraint("Horizontal", 4, 2, 7, 2))
sketch1.addConstraint(Sketcher.Constraint("Horizontal", 6, 2, 9, 2))
sketch1.addConstraint(Sketcher.Constraint("Horizontal", 8, 2, 11, 2))
sketch1.addConstraint(Sketcher.Constraint("Horizontal", 68, 3, 14, 1))
sketch1.addConstraint(Sketcher.Constraint("Horizontal", 0, 2, 18, 2))
sketch1.addConstraint(Sketcher.Constraint("Horizontal", 17, 2, 20, 2))
sketch1.addConstraint(Sketcher.Constraint("Horizontal", 19, 2, 22, 2))
sketch1.addConstraint(Sketcher.Constraint("Horizontal", 21, 2, 24, 2))
sketch1.addConstraint(Sketcher.Constraint("Horizontal", 29, 2, 36, 2))
sketch1.addConstraint(Sketcher.Constraint("Horizontal", 31, 2, 37, 2))
sketch1.addConstraint(Sketcher.Constraint("Horizontal", 35, 2, 39, 2))
sketch1.addConstraint(Sketcher.Constraint("Horizontal", 34, 2, 40, 2))
sketch1.addConstraint(Sketcher.Constraint("Horizontal", 14, 1, 53, 2))
sketch1.addConstraint(Sketcher.Constraint("Horizontal", 53, 2, 61, 2))
sketch1.addConstraint(Sketcher.Constraint("Horizontal", 55, 2, 62, 2))
sketch1.addConstraint(Sketcher.Constraint("Horizontal", 54, 2, 63, 2))
sketch1.addConstraint(Sketcher.Constraint("Horizontal", 59, 2, 69, 2))
sketch1.addConstraint(Sketcher.Constraint("Horizontal", 60, 2, 70, 2))
sketch1.addConstraint(Sketcher.Constraint("Horizontal", 75, 2, 76, 2))
sketch1.addConstraint(Sketcher.Constraint("Horizontal", 74, 2, 77, 2))
sketch1.addConstraint(Sketcher.Constraint("Vertical", 27, 3, 56, 3))
sketch1.addConstraint(Sketcher.Constraint("Vertical", 28, 3, 57, 3))
sketch1.addConstraint(Sketcher.Constraint("Vertical", 43, 3, 80, 3))
sketch1.addConstraint(Sketcher.Constraint("Vertical", 44, 3, 81, 3))
sketch1.addConstraint(Sketcher.Constraint("Vertical", 15, 3, 12, 2))
sketch1.addConstraint(Sketcher.Constraint("Vertical", 13, 2, 15, 1))
sketch1.addConstraint(Sketcher.Constraint("Vertical", 11, 2, 17, 2))
sketch1.addConstraint(Sketcher.Constraint("Vertical", 9, 2, 19, 2))
sketch1.addConstraint(Sketcher.Constraint("Vertical", 7, 2, 21, 2))
sketch1.addConstraint(Sketcher.Constraint("Vertical", 5, 2, 23, 2))
sketch1.addConstraint(Sketcher.Constraint("Vertical", 3, 2, 25, 2))
sketch1.addConstraint(Sketcher.Constraint("Vertical", 30, 2, 58, 2))
sketch1.addConstraint(Sketcher.Constraint("Vertical", 31, 2, 60, 2))
sketch1.addConstraint(Sketcher.Constraint("Vertical", 38, 2, 69, 2))
sketch1.addConstraint(Sketcher.Constraint("Vertical", 33, 2, 72, 2))
sketch1.addConstraint(Sketcher.Constraint("Vertical", 35, 2, 74, 2))
sketch1.addConstraint(Sketcher.Constraint("Vertical", 40, 2, 76, 2))
sketch1.addConstraint(Sketcher.Constraint("Vertical", 42, 2, 78, 2))
sketch1.addConstraint(Sketcher.Constraint("Equal", 4, 6))
sketch1.addConstraint(Sketcher.Constraint("Equal", 6, 8))
sketch1.addConstraint(Sketcher.Constraint("Equal", 8, 10))
sketch1.addConstraint(Sketcher.Constraint("Equal", 10, 12))
sketch1.addConstraint(Sketcher.Constraint("Equal", 34, 39))
sketch1.addConstraint(Sketcher.Constraint("Equal", 13, 16))
sketch1.addConstraint(Sketcher.Constraint("Equal", 11, 18))
sketch1.addConstraint(Sketcher.Constraint("Equal", 26, 33))
sketch1.addConstraint(Sketcher.Constraint("Equal", 48, 65))
sketch1.addConstraint(Sketcher.Constraint("Equal", 42, 73))
sketch1.addConstraint(Sketcher.Constraint("DistanceX", 32, 2, 32, 1, 10.0))
sketch1.addConstraint(Sketcher.Constraint("DistanceY", 1, 1, 1, 2, 130.0))
sketch1.addConstraint(Sketcher.Constraint("Diameter", 68, 6.604))
sketch1.addConstraint(Sketcher.Constraint("DistanceY", 46, 1, 46, 2, 64.2))
sketch1.addConstraint(Sketcher.Constraint("Diameter", 27, 3.28168))
sketch1.addConstraint(Sketcher.Constraint("DistanceY", 3, 1, 3, 2, 3.175))
sketch1.addConstraint(Sketcher.Constraint("DistanceX", 64, 2, 64, 1, 39.062699))
sketch1.addConstraint(Sketcher.Constraint("DistanceX", 4, 2, 4, 1, 71.428571))
sketch1.addConstraint(Sketcher.Constraint("DistanceX", 31, 2, 31, 1, 55.910341))
sketch1.addConstraint(Sketcher.Constraint("DistanceX", 49, 2, 49, 1, 27.09904))
sketch1.addConstraint(Sketcher.Constraint("Distance", 29, 70.889429))
sketch1.addConstraint(Sketcher.Constraint("DistanceX", 0, 1, 0, 2, 42.857143))
sketch1.addConstraint(Sketcher.Constraint("DistanceX", 45, 2, 45, 1, 52.424384))
sketch1.addConstraint(Sketcher.Constraint("DistanceY", 50, 1, 50, 2, 111.259263))
sketch1.addConstraint(Sketcher.Constraint("DistanceY", 55, 1, 55, 2, 95.064494))
sketch1.addConstraint(Sketcher.Constraint("DistanceX", 14, 3, -1, 1, 277.843429))
sketch1.addConstraint(Sketcher.Constraint("DistanceX", 27, 3, -1, 1, 251.318129))
sketch1.addConstraint(Sketcher.Constraint("DistanceY", 27, 3, -1, 1, 27.652411))
sketch1.addConstraint(Sketcher.Constraint("DistanceX", 28, 3, -1, 1, 224.368729))
sketch1.addConstraint(Sketcher.Constraint("DistanceX", -1, 1, 43, 3, 63.681871))
sketch1.addConstraint(Sketcher.Constraint("DistanceX", -1, 1, 44, 3, 90.631271))
sketch1.addConstraint(Sketcher.Constraint("DistanceX", -1, 1, 68, 3, 109.456571))
sketch1.addConstraint(Sketcher.Constraint("DistanceY", 30, 2, -1, 1, 40.35465))
sketch1.addConstraint(Sketcher.Constraint("DistanceX", -1, 1, 32, 2, 12.156571))
sketch1.addConstraint(Sketcher.Constraint("DistanceX", -1, 1, 39, 2, 32.156571))
sketch1.addConstraint(Sketcher.Constraint("DistanceX", 45, 2, -1, 1, 265.143429))
sketch1.addConstraint(Sketcher.Constraint("DistanceX", 53, 2, -1, 1, 86.541249))
sketch1.addConstraint(Sketcher.Constraint("DistanceY", 54, 2, -1, 1, 32.73465))
sketch1.addConstraint(Sketcher.Constraint("DistanceY", -1, 1, 59, 2, 26.368369))
sketch1.addConstraint(Sketcher.Constraint("DistanceX", 61, 2, -1, 1, 69.14561))
sketch1.addConstraint(Sketcher.Constraint("DistanceX", -1, 1, 64, 2, 58.024221))
sketch1.addConstraint(Sketcher.Constraint("DistanceY", -1, 1, 56, 3, 57.247596))
sketch1.addConstraint(Sketcher.Constraint("DistanceX", 29, 2, -1, 1, 83.989665))
sketch1.addConstraint(Sketcher.Constraint("DistanceY", 32, 2, -1, 1, 29.239904))
sketch1.addConstraint(Sketcher.Constraint("DistanceX", 36, 2, -1, 1, 71.697194))
sketch1.addConstraint(Sketcher.Constraint("DistanceY", 45, 2, -1, 1, 17.302404))
sketch1.addConstraint(Sketcher.Constraint("DistanceX", 49, 2, -1, 1, 193.669046))
sketch1.addConstraint(Sketcher.Constraint("DistanceY", 49, 2, -1, 1, 40.832035))
sketch1.addConstraint(Sketcher.Constraint("DistanceY", 64, 2, -1, 1, 17.020775))
sketch1.addConstraint(Sketcher.Constraint("DistanceY", -1, 1, 72, 2, 55.660096))
pad1 = body.newObject("PartDesign::Pad", "Pad")
pad1.Profile = sketch1
pad1.Length = 3.175

doc.recompute()
